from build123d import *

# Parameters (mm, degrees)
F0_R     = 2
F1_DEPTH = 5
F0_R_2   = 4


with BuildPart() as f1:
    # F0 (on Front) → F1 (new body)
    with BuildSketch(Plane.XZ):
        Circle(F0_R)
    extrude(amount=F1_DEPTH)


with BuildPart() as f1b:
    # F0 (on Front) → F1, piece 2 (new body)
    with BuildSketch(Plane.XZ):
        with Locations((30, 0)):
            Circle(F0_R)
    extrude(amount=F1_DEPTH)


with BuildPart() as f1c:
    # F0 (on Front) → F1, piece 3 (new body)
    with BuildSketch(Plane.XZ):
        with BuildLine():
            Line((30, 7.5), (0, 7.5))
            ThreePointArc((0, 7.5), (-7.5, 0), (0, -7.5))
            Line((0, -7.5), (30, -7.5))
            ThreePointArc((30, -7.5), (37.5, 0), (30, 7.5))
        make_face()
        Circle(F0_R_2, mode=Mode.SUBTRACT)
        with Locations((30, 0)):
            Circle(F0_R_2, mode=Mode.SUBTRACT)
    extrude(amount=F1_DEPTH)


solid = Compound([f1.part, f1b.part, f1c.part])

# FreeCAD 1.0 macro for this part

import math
import FreeCAD as App
import Part
import Sketcher
Q = App.Units.Quantity

doc = App.newDocument("Part")
body = doc.addObject("PartDesign::Body", "Body")

# Sketch on XZ plane
sketch1 = doc.addObject("Sketcher::SketchObject", "Sketch")
body.addObject(sketch1)
sketch1.AttachmentSupport = (doc.XZ_Plane, [""])
sketch1.MapMode = "FlatFace"
sketch1.addGeometry(Part.Circle(App.Vector(0, 0, 0), App.Vector(0, 0, 1), 2), False)
sketch1.addConstraint(Sketcher.Constraint("Coincident", 0, 3, -1, 1))
sketch1.addConstraint(Sketcher.Constraint("Diameter", 0, Q("4 mm")))
pad1 = doc.addObject("PartDesign::Pad", "Pad")
body.addObject(pad1)
pad1.Profile = sketch1
pad1.Length = 5
body2 = doc.addObject("PartDesign::Body", "Body001")

# Sketch on XZ plane
sketch2 = doc.addObject("Sketcher::SketchObject", "Sketch001")
body2.addObject(sketch2)
sketch2.AttachmentSupport = (doc.getObject("XZ_Plane001"), [""])
sketch2.MapMode = "FlatFace"
sketch2.addGeometry(Part.Circle(App.Vector(30, 0, 0), App.Vector(0, 0, 1), 2), False)
sketch2.addConstraint(Sketcher.Constraint("PointOnObject", 0, 3, -1))
sketch2.addConstraint(Sketcher.Constraint("Diameter", 0, Q("4 mm")))
sketch2.addConstraint(Sketcher.Constraint("DistanceX", -1, 1, 0, 3, Q("30 mm")))
pad2 = doc.addObject("PartDesign::Pad", "Pad001")
body2.addObject(pad2)
pad2.Profile = sketch2
pad2.Length = 5
body3 = doc.addObject("PartDesign::Body", "Body002")

# Sketch on XZ plane
sketch3 = doc.addObject("Sketcher::SketchObject", "Sketch002")
body3.addObject(sketch3)
sketch3.AttachmentSupport = (doc.getObject("XZ_Plane002"), [""])
sketch3.MapMode = "FlatFace"
sketch3.addGeometry(Part.LineSegment(App.Vector(30, 7.5, 0), App.Vector(0, 7.5, 0)), False)
sketch3.addGeometry(Part.ArcOfCircle(Part.Circle(App.Vector(0, 0, 0), App.Vector(0, 0, 1), 7.5), math.radians(90), math.radians(270)), False)
sketch3.addGeometry(Part.LineSegment(App.Vector(0, -7.5, 0), App.Vector(30, -7.5, 0)), False)
sketch3.addGeometry(Part.ArcOfCircle(Part.Circle(App.Vector(30, 0, 0), App.Vector(0, 0, 1), 7.5), math.radians(-90), math.radians(90)), False)
sketch3.addGeometry(Part.Circle(App.Vector(0, 0, 0), App.Vector(0, 0, 1), 4), False)
sketch3.addGeometry(Part.Circle(App.Vector(30, 0, 0), App.Vector(0, 0, 1), 4), False)
sketch3.addConstraint(Sketcher.Constraint("Tangent", 0, 2, 1, 1))
sketch3.addConstraint(Sketcher.Constraint("Tangent", 1, 2, 2, 1))
sketch3.addConstraint(Sketcher.Constraint("Tangent", 2, 2, 3, 1))
sketch3.addConstraint(Sketcher.Constraint("Tangent", 3, 2, 0, 1))
sketch3.addConstraint(Sketcher.Constraint("Horizontal", 0))
sketch3.addConstraint(Sketcher.Constraint("Horizontal", 2))
sketch3.addConstraint(Sketcher.Constraint("Coincident", 1, 3, -1, 1))
sketch3.addConstraint(Sketcher.Constraint("Coincident", 4, 3, -1, 1))
sketch3.addConstraint(Sketcher.Constraint("Coincident", 5, 3, 3, 3))
sketch3.addConstraint(Sketcher.Constraint("Equal", 4, 5))
sketch3.addConstraint(Sketcher.Constraint("Diameter", 4, Q("8 mm")))
sketch3.addConstraint(Sketcher.Constraint("Radius", 1, Q("7.5 mm")))
sketch3.addConstraint(Sketcher.Constraint("DistanceX", 0, 2, 0, 1, Q("30 mm")))
pad3 = doc.addObject("PartDesign::Pad", "Pad002")
body3.addObject(pad3)
pad3.Profile = sketch3
pad3.Length = 5

doc.recompute()
